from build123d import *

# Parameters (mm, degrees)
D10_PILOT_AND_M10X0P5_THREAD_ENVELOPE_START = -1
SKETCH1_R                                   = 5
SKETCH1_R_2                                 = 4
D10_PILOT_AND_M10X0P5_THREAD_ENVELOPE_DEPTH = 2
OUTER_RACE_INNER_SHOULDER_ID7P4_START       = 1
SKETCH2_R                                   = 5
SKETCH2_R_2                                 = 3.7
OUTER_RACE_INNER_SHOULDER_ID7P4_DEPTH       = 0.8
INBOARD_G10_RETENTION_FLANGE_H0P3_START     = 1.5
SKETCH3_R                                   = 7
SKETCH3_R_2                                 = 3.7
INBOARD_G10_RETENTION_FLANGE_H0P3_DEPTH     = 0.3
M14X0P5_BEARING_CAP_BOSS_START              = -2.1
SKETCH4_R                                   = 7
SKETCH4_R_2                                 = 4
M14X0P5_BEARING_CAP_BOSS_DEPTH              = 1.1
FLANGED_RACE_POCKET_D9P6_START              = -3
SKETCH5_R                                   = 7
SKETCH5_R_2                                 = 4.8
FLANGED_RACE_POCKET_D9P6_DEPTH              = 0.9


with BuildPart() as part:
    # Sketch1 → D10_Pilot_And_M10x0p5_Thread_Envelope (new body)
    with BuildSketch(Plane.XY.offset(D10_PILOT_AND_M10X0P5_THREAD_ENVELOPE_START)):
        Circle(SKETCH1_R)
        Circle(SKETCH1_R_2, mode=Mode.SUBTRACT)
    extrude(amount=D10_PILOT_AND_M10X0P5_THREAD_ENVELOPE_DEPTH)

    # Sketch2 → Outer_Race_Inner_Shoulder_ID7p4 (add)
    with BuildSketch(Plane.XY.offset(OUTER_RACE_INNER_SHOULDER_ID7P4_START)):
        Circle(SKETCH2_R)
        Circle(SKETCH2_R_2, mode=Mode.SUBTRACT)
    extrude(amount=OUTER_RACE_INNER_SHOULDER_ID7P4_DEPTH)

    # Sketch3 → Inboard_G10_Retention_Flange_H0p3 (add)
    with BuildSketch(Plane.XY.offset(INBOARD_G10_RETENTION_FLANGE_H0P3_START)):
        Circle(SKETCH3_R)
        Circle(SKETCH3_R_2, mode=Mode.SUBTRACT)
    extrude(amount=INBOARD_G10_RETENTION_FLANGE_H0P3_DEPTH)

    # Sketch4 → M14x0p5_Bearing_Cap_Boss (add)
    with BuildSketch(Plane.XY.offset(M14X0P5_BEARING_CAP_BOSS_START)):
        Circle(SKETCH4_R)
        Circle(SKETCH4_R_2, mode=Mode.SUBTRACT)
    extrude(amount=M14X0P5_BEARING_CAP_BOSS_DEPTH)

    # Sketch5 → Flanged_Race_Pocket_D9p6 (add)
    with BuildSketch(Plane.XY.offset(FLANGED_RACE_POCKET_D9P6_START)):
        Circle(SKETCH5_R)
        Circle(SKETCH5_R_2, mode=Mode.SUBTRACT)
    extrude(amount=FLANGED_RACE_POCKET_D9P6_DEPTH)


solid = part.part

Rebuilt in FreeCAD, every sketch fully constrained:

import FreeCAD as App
import Part
import Sketcher

doc = App.newDocument("Part")
body = doc.addObject("PartDesign::Body", "Body")

sketch1 = doc.addObject("Sketcher::SketchObject", "Sketch")
body.addObject(sketch1)
sketch1.AttachmentSupport = (doc.XY_Plane, [""])
sketch1.MapMode = "FlatFace"
sketch1.AttachmentOffset = App.Placement(App.Vector(0, 0, -1), App.Rotation())
sketch1.addGeometry([
    Part.Circle(App.Vector(0, 0, 0), App.Vector(0, 0, 1), 5),
    Part.Circle(App.Vector(0, 0, 0), App.Vector(0, 0, 1), 4),
], False)
sketch1.addConstraint([
    Sketcher.Constraint("Coincident", 0, 3, -1, 1),
    Sketcher.Constraint("Coincident", 1, 3, -1, 1),
    Sketcher.Constraint("Diameter", 0, 10.0),
    Sketcher.Constraint("Diameter", 1, 8.0),
])
pad1 = doc.addObject("PartDesign::Pad", "Pad")
body.addObject(pad1)
pad1.Profile = sketch1
pad1.Length = 2

sketch2 = doc.addObject("Sketcher::SketchObject", "Sketch001")
body.addObject(sketch2)
sketch2.AttachmentSupport = (doc.XY_Plane, [""])
sketch2.MapMode = "FlatFace"
sketch2.AttachmentOffset = App.Placement(App.Vector(0, 0, 1), App.Rotation())
sketch2.addGeometry([
    Part.Circle(App.Vector(0, 0, 0), App.Vector(0, 0, 1), 5),
    Part.Circle(App.Vector(0, 0, 0), App.Vector(0, 0, 1), 3.7),
], False)
sketch2.addConstraint([
    Sketcher.Constraint("Coincident", 0, 3, -1, 1),
    Sketcher.Constraint("Coincident", 1, 3, -1, 1),
    Sketcher.Constraint("Diameter", 0, 10.0),
    Sketcher.Constraint("Diameter", 1, 7.4),
])
pad2 = doc.addObject("PartDesign::Pad", "Pad001")
body.addObject(pad2)
pad2.Profile = sketch2
pad2.Length = 0.8

sketch3 = doc.addObject("Sketcher::SketchObject", "Sketch002")
body.addObject(sketch3)
sketch3.AttachmentSupport = (doc.XY_Plane, [""])
sketch3.MapMode = "FlatFace"
sketch3.AttachmentOffset = App.Placement(App.Vector(0, 0, 1.5), App.Rotation())
sketch3.addGeometry([
    Part.Circle(App.Vector(0, 0, 0), App.Vector(0, 0, 1), 7),
    Part.Circle(App.Vector(0, 0, 0), App.Vector(0, 0, 1), 3.7),
], False)
sketch3.addConstraint([
    Sketcher.Constraint("Coincident", 0, 3, -1, 1),
    Sketcher.Constraint("Coincident", 1, 3, -1, 1),
    Sketcher.Constraint("Diameter", 0, 14.0),
    Sketcher.Constraint("Diameter", 1, 7.4),
])
pad3 = doc.addObject("PartDesign::Pad", "Pad002")
body.addObject(pad3)
pad3.Profile = sketch3
pad3.Length = 0.3

sketch4 = doc.addObject("Sketcher::SketchObject", "Sketch003")
body.addObject(sketch4)
sketch4.AttachmentSupport = (doc.XY_Plane, [""])
sketch4.MapMode = "FlatFace"
sketch4.AttachmentOffset = App.Placement(App.Vector(0, 0, -2.1), App.Rotation())
sketch4.addGeometry([
    Part.Circle(App.Vector(0, 0, 0), App.Vector(0, 0, 1), 7),
    Part.Circle(App.Vector(0, 0, 0), App.Vector(0, 0, 1), 4),
], False)
sketch4.addConstraint([
    Sketcher.Constraint("Coincident", 0, 3, -1, 1),
    Sketcher.Constraint("Coincident", 1, 3, -1, 1),
    Sketcher.Constraint("Diameter", 0, 14.0),
    Sketcher.Constraint("Diameter", 1, 8.0),
])
pad4 = doc.addObject("PartDesign::Pad", "Pad003")
body.addObject(pad4)
pad4.Profile = sketch4
pad4.Length = 1.1

sketch5 = doc.addObject("Sketcher::SketchObject", "Sketch004")
body.addObject(sketch5)
sketch5.AttachmentSupport = (doc.XY_Plane, [""])
sketch5.MapMode = "FlatFace"
sketch5.AttachmentOffset = App.Placement(App.Vector(0, 0, -3), App.Rotation())
sketch5.addGeometry([
    Part.Circle(App.Vector(0, 0, 0), App.Vector(0, 0, 1), 7),
    Part.Circle(App.Vector(0, 0, 0), App.Vector(0, 0, 1), 4.8),
], False)
sketch5.addConstraint([
    Sketcher.Constraint("Coincident", 0, 3, -1, 1),
    Sketcher.Constraint("Coincident", 1, 3, -1, 1),
    Sketcher.Constraint("Diameter", 0, 14.0),
    Sketcher.Constraint("Diameter", 1, 9.6),
])
pad5 = doc.addObject("PartDesign::Pad", "Pad004")
body.addObject(pad5)
pad5.Profile = sketch5
pad5.Length = 0.9

doc.recompute()
